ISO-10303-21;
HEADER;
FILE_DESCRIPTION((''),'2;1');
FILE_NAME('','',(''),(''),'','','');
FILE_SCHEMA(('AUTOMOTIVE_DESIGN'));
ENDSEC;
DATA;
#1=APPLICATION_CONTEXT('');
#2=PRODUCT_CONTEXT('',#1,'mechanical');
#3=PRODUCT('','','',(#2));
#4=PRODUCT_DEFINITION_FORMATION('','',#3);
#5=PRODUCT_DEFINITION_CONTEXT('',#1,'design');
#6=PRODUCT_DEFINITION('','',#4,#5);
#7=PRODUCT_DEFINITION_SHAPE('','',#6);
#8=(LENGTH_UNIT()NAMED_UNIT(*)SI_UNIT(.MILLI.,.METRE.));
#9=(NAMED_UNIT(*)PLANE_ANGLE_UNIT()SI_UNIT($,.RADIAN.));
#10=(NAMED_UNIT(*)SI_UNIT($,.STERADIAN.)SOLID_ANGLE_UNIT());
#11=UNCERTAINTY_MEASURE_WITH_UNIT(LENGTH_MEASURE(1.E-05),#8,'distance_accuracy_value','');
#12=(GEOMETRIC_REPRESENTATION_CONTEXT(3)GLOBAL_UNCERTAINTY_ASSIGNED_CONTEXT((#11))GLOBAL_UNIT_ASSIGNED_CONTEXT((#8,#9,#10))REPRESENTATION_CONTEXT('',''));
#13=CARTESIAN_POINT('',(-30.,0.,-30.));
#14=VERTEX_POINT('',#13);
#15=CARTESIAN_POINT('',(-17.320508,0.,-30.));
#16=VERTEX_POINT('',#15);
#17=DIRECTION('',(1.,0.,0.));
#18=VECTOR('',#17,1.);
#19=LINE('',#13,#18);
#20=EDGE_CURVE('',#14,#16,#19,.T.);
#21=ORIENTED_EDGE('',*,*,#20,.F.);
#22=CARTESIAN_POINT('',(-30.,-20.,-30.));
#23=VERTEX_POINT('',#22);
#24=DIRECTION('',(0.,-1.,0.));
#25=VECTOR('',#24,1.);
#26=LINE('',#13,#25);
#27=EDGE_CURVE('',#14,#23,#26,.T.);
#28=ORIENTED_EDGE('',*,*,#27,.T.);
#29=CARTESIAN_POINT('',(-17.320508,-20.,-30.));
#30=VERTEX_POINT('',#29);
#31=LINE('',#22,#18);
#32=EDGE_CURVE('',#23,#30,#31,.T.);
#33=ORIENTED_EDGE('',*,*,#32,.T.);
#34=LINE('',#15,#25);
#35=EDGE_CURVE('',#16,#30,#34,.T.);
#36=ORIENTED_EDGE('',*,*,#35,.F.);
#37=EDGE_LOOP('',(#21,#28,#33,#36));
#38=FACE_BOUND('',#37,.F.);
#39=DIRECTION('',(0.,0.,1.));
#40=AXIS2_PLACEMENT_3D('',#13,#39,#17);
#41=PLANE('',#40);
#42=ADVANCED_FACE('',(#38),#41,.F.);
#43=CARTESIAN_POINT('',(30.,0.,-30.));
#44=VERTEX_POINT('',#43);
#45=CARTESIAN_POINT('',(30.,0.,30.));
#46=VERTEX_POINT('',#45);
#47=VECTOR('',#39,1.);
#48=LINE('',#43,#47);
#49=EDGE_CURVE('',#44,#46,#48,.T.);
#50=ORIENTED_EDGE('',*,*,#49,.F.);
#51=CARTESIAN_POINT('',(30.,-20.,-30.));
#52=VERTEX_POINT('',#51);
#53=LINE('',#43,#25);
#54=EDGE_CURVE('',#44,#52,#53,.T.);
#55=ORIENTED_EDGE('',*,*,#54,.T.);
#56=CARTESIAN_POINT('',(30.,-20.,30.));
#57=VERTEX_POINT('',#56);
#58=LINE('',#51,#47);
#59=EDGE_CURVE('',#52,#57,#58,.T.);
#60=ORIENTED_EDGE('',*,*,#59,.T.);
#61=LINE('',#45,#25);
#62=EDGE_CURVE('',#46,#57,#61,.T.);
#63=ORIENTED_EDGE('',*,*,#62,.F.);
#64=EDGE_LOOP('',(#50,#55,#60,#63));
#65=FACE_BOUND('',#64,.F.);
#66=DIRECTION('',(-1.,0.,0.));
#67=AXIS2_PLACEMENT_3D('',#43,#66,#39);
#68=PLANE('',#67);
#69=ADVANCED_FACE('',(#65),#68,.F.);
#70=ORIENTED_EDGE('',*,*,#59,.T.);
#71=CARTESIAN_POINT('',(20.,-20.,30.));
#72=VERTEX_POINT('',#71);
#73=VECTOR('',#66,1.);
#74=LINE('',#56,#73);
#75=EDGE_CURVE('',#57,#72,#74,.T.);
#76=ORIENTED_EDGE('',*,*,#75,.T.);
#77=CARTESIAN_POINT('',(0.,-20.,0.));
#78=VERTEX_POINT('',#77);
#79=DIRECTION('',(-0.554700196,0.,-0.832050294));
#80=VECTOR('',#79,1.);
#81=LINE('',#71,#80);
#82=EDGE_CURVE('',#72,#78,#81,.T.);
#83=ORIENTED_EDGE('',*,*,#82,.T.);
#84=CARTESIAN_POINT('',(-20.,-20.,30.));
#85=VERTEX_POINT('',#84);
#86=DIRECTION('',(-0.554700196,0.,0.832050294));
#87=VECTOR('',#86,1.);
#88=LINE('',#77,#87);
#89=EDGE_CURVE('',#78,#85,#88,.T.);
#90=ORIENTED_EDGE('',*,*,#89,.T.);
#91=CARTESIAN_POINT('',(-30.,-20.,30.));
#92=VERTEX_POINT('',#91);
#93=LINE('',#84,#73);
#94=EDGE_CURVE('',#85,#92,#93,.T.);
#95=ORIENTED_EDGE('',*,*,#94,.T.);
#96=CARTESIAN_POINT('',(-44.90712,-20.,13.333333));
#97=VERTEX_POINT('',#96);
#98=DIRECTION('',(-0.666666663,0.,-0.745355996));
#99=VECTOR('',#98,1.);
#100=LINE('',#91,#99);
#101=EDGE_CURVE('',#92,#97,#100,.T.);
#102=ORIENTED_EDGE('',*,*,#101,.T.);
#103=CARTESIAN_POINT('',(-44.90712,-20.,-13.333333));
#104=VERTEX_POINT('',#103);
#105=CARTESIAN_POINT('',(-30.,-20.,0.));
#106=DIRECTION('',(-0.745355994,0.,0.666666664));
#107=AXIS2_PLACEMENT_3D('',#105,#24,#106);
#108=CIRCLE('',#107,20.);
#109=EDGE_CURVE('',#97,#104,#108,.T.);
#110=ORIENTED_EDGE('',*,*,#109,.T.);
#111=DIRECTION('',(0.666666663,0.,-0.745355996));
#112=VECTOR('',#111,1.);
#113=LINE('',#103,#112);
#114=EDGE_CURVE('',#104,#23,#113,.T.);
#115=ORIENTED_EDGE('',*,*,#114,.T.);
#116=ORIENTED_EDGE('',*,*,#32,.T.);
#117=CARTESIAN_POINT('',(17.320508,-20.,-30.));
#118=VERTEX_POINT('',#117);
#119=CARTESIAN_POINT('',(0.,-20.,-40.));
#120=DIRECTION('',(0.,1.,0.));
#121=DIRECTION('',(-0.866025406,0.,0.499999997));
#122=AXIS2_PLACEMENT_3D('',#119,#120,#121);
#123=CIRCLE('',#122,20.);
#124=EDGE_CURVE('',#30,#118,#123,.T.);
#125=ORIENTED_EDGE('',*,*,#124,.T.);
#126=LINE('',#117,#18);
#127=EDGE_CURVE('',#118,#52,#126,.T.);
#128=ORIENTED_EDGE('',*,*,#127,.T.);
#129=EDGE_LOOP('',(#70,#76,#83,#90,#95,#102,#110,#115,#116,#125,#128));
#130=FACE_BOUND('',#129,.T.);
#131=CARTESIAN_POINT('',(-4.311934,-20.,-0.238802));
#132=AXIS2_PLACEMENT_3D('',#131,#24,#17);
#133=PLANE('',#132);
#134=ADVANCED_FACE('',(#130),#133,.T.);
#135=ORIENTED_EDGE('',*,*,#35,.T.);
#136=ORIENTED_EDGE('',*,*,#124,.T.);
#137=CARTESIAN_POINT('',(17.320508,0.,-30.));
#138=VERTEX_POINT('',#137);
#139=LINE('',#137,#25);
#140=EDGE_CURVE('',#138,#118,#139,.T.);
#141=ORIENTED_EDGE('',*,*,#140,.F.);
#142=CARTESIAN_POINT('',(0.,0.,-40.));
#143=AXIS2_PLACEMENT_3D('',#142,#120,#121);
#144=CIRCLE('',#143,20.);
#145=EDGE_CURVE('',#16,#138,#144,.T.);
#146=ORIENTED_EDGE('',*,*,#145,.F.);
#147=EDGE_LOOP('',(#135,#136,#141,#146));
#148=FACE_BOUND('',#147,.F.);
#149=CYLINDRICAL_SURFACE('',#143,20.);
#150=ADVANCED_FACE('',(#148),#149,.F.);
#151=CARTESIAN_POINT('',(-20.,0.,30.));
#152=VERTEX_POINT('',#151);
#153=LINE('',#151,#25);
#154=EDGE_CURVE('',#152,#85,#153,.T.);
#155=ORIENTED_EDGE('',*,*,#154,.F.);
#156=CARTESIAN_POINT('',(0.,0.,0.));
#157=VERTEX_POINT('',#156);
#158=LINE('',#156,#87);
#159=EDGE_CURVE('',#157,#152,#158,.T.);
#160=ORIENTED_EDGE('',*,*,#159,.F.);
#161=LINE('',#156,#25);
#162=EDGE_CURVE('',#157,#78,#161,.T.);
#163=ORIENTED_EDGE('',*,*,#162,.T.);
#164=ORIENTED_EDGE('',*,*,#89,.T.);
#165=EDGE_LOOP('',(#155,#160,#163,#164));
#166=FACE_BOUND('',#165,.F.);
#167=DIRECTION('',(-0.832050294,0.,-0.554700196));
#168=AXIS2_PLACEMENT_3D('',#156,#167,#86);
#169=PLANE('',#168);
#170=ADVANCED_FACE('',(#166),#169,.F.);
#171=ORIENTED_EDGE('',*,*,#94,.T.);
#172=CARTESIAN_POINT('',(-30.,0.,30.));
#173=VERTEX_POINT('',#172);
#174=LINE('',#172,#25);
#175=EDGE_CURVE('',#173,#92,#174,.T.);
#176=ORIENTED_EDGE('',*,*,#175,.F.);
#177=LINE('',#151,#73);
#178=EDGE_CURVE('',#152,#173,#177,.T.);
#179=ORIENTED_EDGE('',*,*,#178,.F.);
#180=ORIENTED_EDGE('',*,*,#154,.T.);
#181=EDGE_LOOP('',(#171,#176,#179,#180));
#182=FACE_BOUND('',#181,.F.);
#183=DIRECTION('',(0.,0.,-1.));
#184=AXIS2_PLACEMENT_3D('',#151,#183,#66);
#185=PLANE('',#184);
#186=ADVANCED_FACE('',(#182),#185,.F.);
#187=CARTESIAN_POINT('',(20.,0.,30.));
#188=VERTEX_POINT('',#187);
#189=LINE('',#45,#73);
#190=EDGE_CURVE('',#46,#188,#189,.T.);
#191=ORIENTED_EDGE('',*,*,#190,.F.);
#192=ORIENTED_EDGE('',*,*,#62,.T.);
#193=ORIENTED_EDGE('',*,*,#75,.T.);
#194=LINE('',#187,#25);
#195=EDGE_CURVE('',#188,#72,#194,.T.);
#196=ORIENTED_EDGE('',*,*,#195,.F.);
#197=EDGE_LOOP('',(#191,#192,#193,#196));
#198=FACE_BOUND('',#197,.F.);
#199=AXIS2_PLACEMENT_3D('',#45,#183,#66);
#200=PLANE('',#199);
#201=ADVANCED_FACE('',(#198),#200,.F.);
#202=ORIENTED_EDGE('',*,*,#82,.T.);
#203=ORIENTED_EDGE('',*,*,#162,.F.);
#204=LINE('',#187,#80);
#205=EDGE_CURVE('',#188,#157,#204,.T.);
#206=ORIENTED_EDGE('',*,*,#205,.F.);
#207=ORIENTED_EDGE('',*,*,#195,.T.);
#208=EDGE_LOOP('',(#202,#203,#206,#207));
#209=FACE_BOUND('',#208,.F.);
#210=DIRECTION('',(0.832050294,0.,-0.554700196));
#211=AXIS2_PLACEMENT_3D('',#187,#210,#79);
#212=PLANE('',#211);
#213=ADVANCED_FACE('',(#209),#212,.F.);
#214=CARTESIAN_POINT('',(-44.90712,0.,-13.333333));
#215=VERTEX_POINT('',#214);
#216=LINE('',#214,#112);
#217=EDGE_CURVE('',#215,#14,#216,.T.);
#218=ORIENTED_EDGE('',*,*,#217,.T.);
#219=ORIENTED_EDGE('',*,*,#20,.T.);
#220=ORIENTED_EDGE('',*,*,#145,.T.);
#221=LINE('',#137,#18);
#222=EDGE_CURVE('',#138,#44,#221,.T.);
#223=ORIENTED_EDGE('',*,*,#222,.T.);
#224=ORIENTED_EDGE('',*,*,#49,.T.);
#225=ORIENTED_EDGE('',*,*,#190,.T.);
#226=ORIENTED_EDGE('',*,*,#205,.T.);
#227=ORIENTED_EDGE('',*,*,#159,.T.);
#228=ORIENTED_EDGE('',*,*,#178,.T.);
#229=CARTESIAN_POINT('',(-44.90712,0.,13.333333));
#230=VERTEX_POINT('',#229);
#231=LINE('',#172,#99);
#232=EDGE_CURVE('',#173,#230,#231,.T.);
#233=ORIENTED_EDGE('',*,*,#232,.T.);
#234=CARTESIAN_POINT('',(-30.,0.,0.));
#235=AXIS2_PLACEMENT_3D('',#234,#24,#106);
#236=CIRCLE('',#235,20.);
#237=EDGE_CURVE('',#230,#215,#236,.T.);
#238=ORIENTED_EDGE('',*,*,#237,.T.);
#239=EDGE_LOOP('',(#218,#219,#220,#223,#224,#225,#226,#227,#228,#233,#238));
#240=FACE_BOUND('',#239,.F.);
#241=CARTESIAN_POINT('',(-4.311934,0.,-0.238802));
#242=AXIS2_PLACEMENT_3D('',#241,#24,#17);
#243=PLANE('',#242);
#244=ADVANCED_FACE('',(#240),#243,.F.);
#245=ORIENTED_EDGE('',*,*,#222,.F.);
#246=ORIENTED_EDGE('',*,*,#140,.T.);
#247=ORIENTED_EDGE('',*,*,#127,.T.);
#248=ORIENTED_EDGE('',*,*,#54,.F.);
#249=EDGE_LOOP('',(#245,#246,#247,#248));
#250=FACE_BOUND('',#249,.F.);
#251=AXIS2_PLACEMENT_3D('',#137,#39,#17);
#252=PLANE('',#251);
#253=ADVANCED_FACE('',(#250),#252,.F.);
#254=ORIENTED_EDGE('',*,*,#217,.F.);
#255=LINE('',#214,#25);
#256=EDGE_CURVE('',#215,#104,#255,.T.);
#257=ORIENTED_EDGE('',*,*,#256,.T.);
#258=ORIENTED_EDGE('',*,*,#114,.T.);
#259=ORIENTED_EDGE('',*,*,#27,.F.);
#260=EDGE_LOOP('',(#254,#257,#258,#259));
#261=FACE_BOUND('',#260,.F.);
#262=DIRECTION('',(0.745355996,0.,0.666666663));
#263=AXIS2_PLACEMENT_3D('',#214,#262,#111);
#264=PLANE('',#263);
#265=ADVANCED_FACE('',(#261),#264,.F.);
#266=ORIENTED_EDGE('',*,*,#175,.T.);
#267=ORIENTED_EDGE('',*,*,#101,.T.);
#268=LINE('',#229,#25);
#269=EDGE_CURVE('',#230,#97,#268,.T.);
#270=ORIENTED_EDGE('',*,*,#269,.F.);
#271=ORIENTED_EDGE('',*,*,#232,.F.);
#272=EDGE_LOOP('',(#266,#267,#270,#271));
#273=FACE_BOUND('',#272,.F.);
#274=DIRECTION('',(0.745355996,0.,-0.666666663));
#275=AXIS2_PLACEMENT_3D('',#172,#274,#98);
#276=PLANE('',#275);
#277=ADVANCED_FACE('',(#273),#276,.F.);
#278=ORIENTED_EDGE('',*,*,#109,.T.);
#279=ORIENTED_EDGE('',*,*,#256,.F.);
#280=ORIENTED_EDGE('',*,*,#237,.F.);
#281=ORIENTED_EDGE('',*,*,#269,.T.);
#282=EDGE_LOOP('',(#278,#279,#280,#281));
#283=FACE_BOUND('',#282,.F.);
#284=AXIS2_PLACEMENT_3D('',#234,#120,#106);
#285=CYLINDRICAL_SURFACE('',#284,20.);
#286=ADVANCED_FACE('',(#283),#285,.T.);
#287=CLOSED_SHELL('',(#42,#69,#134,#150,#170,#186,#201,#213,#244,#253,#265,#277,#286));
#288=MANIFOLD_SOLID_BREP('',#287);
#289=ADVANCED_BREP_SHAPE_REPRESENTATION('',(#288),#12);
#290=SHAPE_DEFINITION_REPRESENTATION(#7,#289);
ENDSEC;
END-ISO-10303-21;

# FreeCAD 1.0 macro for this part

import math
import FreeCAD as App
import Part
import Sketcher

doc = App.newDocument("Part")
params = doc.addObject("Spreadsheet::Sheet", "Params")
for row, (alias, value) in enumerate([
    ("sketch1_radius", "20 mm"),
    ("sketch1_width", "10 mm"),
    ("sketch1_height", "60 mm"),
    ("pad1_length", "20 mm"),
], start=1):
    params.set(f"A{row}", alias)
    params.set(f"B{row}", "=" + value)
    params.setAlias(f"B{row}", alias)

body = doc.addObject("PartDesign::Body", "Body")

# Sketch on XZ plane
sketch1 = body.newObject("Sketcher::SketchObject", "Sketch")
sketch1.AttachmentSupport = (doc.getObject("XZ_Plane"), [""])
sketch1.MapMode = "FlatFace"
sketch1.addGeometry(Part.LineSegment(App.Vector(17, -30, 0), App.Vector(30, -30, 0)), False)
sketch1.addGeometry(Part.LineSegment(App.Vector(30, -30, 0), App.Vector(30, 30, 0)), False)
sketch1.addGeometry(Part.LineSegment(App.Vector(30, 30, 0), App.Vector(20, 30, 0)), False)
sketch1.addGeometry(Part.LineSegment(App.Vector(20, 30, 0), App.Vector(0, 0, 0)), False)
sketch1.addGeometry(Part.LineSegment(App.Vector(0, 0, 0), App.Vector(-20, 30, 0)), False)
sketch1.addGeometry(Part.LineSegment(App.Vector(-20, 30, 0), App.Vector(-30, 30, 0)), False)
sketch1.addGeometry(Part.LineSegment(App.Vector(-30, 30, 0), App.Vector(-45, 13, 0)), False)
sketch1.addGeometry(Part.ArcOfCircle(Part.Circle(App.Vector(-30, 0, 0), App.Vector(0, 0, 1), 20), math.radians(138), math.radians(222)), False)
sketch1.addGeometry(Part.LineSegment(App.Vector(-45, -13, 0), App.Vector(-30, -30, 0)), False)
sketch1.addGeometry(Part.LineSegment(App.Vector(-30, -30, 0), App.Vector(-17, -30, 0)), False)
sketch1.addGeometry(Part.ArcOfCircle(Part.Circle(App.Vector(0, -40, 0), App.Vector(0, 0, 1), 20), math.radians(30), math.radians(150)), False)
sketch1.addConstraint(Sketcher.Constraint("Coincident", 0, 2, 1, 1))
sketch1.addConstraint(Sketcher.Constraint("Coincident", 1, 2, 2, 1))
sketch1.addConstraint(Sketcher.Constraint("Coincident", 2, 2, 3, 1))
sketch1.addConstraint(Sketcher.Constraint("Coincident", 3, 2, 4, 1))
sketch1.addConstraint(Sketcher.Constraint("Coincident", 4, 2, 5, 1))
sketch1.addConstraint(Sketcher.Constraint("Coincident", 5, 2, 6, 1))
sketch1.addConstraint(Sketcher.Constraint("Tangent", 6, 2, 7, 1))
sketch1.addConstraint(Sketcher.Constraint("Tangent", 7, 2, 8, 1))
sketch1.addConstraint(Sketcher.Constraint("Coincident", 8, 2, 9, 1))
sketch1.addConstraint(Sketcher.Constraint("Coincident", 9, 2, 10, 2))
sketch1.addConstraint(Sketcher.Constraint("Coincident", 10, 1, 0, 1))
sketch1.addConstraint(Sketcher.Constraint("Horizontal", 0))
sketch1.addConstraint(Sketcher.Constraint("Vertical", 1))
sketch1.addConstraint(Sketcher.Constraint("Horizontal", 2))
sketch1.addConstraint(Sketcher.Constraint("Horizontal", 5))
sketch1.addConstraint(Sketcher.Constraint("Horizontal", 9))
sketch1.addConstraint(Sketcher.Constraint("Coincident", 3, 2, -1, 1))
sketch1.addConstraint(Sketcher.Constraint("Equal", 7, 10))
sketch1.addConstraint(Sketcher.Constraint("Symmetric", 0, 2, 5, 2, -1, 1))
sketch1.addConstraint(Sketcher.Constraint("Symmetric", 1, 2, 8, 2, -1, 1))
sketch1.addConstraint(Sketcher.Constraint("Symmetric", 2, 2, 4, 2, -2))
sketch1.addConstraint(Sketcher.Constraint("PointOnObject", 7, 3, -1))
sketch1.addConstraint(Sketcher.Constraint("PointOnObject", 10, 3, -2))
sketch1.addConstraint(Sketcher.Constraint("Vertical", 7, 3, 5, 2))
sketch1.addConstraint(Sketcher.Constraint("Radius", 7, 20.0))
sketch1.addConstraint(Sketcher.Constraint("DistanceX", 2, 2, 2, 1, 10.0))
sketch1.addConstraint(Sketcher.Constraint("DistanceY", 1, 1, 1, 2, 60.0))
sketch1.addConstraint(Sketcher.Constraint("DistanceX", 7, 3, -1, 1, 30.0))
sketch1.addConstraint(Sketcher.Constraint("DistanceY", 10, 3, -1, 1, 40.0))
sketch1.setExpression("Constraints[24]", "Params.sketch1_radius")
sketch1.setExpression("Constraints[25]", "Params.sketch1_width")
sketch1.setExpression("Constraints[26]", "Params.sketch1_height")
pad1 = body.newObject("PartDesign::Pad", "Pad")
pad1.Profile = sketch1
pad1.setExpression("Length", "Params.pad1_length")

doc.recompute()
